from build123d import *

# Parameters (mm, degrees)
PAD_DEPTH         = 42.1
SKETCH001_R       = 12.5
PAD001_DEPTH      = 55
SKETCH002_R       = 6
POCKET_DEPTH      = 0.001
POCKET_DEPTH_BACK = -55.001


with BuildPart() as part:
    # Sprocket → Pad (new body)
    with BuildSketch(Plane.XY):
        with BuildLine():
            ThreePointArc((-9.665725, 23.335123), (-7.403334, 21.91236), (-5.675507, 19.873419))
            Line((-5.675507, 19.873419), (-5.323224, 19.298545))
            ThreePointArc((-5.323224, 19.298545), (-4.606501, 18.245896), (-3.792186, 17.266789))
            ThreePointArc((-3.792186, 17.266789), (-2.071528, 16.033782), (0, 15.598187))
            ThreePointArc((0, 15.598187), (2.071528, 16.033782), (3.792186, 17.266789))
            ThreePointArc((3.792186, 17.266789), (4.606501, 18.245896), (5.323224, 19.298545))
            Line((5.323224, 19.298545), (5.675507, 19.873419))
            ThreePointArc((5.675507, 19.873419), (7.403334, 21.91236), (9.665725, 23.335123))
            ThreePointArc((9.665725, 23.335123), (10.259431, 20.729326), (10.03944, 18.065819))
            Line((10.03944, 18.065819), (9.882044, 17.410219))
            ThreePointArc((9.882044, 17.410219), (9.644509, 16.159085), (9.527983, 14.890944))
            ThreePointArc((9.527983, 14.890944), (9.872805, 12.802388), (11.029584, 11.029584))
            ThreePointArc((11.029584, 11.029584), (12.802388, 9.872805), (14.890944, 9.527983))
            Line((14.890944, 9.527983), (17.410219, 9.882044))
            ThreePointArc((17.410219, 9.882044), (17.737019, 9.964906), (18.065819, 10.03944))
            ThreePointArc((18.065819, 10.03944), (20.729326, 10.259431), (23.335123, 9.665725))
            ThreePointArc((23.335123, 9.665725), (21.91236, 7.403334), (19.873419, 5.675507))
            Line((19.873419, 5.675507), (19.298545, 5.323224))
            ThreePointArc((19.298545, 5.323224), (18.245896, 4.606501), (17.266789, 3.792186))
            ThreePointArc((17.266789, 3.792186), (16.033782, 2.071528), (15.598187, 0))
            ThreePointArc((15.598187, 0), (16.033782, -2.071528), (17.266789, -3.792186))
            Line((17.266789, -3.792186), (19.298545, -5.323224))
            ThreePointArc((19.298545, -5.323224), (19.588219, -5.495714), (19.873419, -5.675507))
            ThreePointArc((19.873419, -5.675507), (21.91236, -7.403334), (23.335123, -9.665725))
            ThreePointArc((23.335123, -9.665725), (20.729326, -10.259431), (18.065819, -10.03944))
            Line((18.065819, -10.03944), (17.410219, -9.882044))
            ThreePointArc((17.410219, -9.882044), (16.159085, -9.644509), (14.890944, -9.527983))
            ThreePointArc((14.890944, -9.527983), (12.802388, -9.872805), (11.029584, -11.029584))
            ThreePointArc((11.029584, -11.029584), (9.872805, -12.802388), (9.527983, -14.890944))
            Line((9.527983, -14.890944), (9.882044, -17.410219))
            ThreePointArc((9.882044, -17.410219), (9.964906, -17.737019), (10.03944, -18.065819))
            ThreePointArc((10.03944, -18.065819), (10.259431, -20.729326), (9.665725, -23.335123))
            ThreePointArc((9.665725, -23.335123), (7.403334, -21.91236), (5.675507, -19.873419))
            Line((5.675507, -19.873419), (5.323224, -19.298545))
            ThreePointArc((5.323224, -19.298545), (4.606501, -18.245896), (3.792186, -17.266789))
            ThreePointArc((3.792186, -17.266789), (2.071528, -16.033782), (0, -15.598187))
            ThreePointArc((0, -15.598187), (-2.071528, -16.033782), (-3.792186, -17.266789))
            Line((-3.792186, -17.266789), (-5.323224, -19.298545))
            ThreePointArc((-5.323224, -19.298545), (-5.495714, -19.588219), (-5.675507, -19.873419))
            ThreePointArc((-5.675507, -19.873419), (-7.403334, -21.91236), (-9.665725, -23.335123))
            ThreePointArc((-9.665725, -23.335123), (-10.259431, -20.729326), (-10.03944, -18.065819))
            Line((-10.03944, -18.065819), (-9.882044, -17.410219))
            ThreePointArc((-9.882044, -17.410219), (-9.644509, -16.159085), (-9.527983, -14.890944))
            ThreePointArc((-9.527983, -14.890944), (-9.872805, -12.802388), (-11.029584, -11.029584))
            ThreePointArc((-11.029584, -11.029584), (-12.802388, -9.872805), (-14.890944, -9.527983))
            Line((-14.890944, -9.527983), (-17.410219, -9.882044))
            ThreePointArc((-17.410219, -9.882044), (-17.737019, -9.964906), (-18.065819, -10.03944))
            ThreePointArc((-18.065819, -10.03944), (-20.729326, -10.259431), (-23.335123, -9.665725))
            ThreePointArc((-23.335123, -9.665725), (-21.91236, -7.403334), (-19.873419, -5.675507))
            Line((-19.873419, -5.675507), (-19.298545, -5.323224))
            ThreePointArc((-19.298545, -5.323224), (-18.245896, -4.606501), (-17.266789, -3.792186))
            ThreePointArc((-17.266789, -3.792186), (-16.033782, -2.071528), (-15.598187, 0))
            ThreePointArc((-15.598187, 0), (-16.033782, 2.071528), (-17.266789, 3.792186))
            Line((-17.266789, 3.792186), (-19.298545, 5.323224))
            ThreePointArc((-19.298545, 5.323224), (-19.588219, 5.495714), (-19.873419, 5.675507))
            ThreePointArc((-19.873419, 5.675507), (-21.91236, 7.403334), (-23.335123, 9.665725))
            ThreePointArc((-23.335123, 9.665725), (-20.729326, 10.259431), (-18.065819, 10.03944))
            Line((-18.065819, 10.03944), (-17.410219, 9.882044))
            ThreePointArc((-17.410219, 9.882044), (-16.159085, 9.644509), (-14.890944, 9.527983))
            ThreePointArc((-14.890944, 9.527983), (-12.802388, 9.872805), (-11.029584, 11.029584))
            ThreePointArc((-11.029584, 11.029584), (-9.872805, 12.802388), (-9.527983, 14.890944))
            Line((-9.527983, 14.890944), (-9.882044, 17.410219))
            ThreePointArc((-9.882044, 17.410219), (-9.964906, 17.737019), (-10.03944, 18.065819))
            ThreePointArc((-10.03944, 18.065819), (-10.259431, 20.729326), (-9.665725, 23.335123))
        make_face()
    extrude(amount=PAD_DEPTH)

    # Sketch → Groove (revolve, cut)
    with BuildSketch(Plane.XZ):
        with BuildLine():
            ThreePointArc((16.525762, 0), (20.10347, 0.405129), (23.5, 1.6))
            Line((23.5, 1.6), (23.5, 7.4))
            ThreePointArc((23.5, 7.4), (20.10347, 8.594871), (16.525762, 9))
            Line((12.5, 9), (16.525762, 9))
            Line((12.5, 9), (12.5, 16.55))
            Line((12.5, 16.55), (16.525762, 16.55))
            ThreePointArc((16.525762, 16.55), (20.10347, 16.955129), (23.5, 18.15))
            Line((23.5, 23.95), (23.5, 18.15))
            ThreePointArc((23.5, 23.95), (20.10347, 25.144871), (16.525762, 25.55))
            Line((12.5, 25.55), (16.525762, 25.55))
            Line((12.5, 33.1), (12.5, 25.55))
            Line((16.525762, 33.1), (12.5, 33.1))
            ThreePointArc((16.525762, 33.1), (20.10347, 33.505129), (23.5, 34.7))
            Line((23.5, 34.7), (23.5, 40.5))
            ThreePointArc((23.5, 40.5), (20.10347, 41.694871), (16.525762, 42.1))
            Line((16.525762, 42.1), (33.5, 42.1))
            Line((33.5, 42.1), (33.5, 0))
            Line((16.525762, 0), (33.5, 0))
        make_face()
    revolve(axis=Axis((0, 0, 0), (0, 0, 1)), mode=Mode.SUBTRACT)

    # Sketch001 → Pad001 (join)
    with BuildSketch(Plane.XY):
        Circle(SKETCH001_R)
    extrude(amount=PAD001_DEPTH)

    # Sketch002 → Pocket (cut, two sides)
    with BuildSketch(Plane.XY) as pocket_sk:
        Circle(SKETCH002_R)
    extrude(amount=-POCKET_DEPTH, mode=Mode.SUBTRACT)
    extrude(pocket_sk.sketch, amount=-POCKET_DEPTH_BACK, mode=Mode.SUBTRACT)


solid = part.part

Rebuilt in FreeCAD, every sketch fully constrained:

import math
import FreeCAD as App
import Part
import Sketcher
from FreeCAD import Vector
Q = App.Units.Quantity

doc = App.newDocument("Part")
body = doc.addObject("PartDesign::Body", "Body")

# Sketch on XY plane
sketch1 = doc.addObject("Sketcher::SketchObject", "Sketch")
body.addObject(sketch1)
sketch1.AttachmentSupport = (doc.XY_Plane, [""])
sketch1.MapMode = "FlatFace"
sketch1.addGeometry([
    Part.ArcOfCircle(Part.Circle(Vector(-13.1, 15.3, 0), Vector(0, 0, 1), 8.8), math.radians(32), math.radians(67)),  # 0
    Part.ArcOfCircle(Part.Circle(Vector(-1.5, 20.1, 0), Vector(0, 0, 1), 8.8), math.radians(158), math.radians(193)),  # 1
    Part.ArcOfCircle(Part.Circle(Vector(2.9, 20.8, 0), Vector(0, 0, 1), 13.3), math.radians(-167.96), math.radians(-165.04)),  # 2
    Part.LineSegment(Vector(-9.9, 17.4, 0), Vector(-9.5, 14.9, 0)),  # 3
    Part.ArcOfCircle(Part.Circle(Vector(-14.7, 14.7, 0), Vector(0, 0, 1), 5.1), math.radians(-45), math.radians(2)),  # 4
    Part.ArcOfCircle(Part.Circle(Vector(-14.7, 14.7, 0), Vector(0, 0, 1), 5.1), math.radians(-92), math.radians(-45)),  # 5
    Part.ArcOfCircle(Part.Circle(Vector(-14.3, 22.8, 0), Vector(0, 0, 1), 13.3), math.radians(-103.5), math.radians(-92.5)),  # 6
    Part.LineSegment(Vector(-17.4, 9.9, 0), Vector(-18.1, 10, 0)),  # 7
    Part.ArcOfCircle(Part.Circle(Vector(-20.1, 1.5, 0), Vector(0, 0, 1), 8.8), math.radians(77), math.radians(112)),  # 8
    Part.ArcOfCircle(Part.Circle(Vector(-15.3, 13.1, 0), Vector(0, 0, 1), 8.8), math.radians(-157), math.radians(-122)),  # 9
    Part.ArcOfCircle(Part.Circle(Vector(-12.7, 16.8, 0), Vector(0, 0, 1), 13.3), math.radians(-122.96), math.radians(-120.04)),  # 10
    Part.LineSegment(Vector(-19.3, 5.3, 0), Vector(-17.3, 3.8, 0)),  # 11
    Part.ArcOfCircle(Part.Circle(Vector(-20.7, 0, 0), Vector(0, 0, 1), 5.1), math.radians(0), math.radians(48)),  # 12
    Part.ArcOfCircle(Part.Circle(Vector(-20.7, 0, 0), Vector(0, 0, 1), 5.1), math.radians(-48), math.radians(0)),  # 13
    Part.ArcOfCircle(Part.Circle(Vector(-26.2, 6, 0), Vector(0, 0, 1), 13.3), math.radians(-58.5), math.radians(-47.5)),  # 14
    Part.LineSegment(Vector(-19.3, -5.3, 0), Vector(-19.9, -5.7, 0)),  # 15
    Part.ArcOfCircle(Part.Circle(Vector(-15.3, -13.1, 0), Vector(0, 0, 1), 8.8), math.radians(122), math.radians(157)),  # 16
    Part.ArcOfCircle(Part.Circle(Vector(-20.1, -1.5, 0), Vector(0, 0, 1), 8.8), math.radians(-112), math.radians(-77)),  # 17
    Part.ArcOfCircle(Part.Circle(Vector(-20.8, 2.9, 0), Vector(0, 0, 1), 13.3), math.radians(-77.96), math.radians(-75.04)),  # 18
    Part.LineSegment(Vector(-17.4, -9.9, 0), Vector(-14.9, -9.5, 0)),  # 19
    Part.ArcOfCircle(Part.Circle(Vector(-14.7, -14.7, 0), Vector(0, 0, 1), 5.1), math.radians(45), math.radians(92)),  # 20
    Part.ArcOfCircle(Part.Circle(Vector(-14.7, -14.7, 0), Vector(0, 0, 1), 5.1), math.radians(-2), math.radians(45)),  # 21
    Part.ArcOfCircle(Part.Circle(Vector(-22.8, -14.3, 0), Vector(0, 0, 1), 13.3), math.radians(-13.5), math.radians(-2.5)),  # 22
    Part.LineSegment(Vector(-9.9, -17.4, 0), Vector(-10, -18.1, 0)),  # 23
    Part.ArcOfCircle(Part.Circle(Vector(-1.5, -20.1, 0), Vector(0, 0, 1), 8.8), math.radians(167), math.radians(202)),  # 24
    Part.ArcOfCircle(Part.Circle(Vector(-13.1, -15.3, 0), Vector(0, 0, 1), 8.8), math.radians(-67), math.radians(-32)),  # 25
    Part.ArcOfCircle(Part.Circle(Vector(-16.8, -12.7, 0), Vector(0, 0, 1), 13.3), math.radians(-32.96), math.radians(-30.04)),  # 26
    Part.LineSegment(Vector(-5.3, -19.3, 0), Vector(-3.8, -17.3, 0)),  # 27
    Part.ArcOfCircle(Part.Circle(Vector(0, -20.7, 0), Vector(0, 0, 1), 5.1), math.radians(90), math.radians(138)),  # 28
    Part.ArcOfCircle(Part.Circle(Vector(0, -20.7, 0), Vector(0, 0, 1), 5.1), math.radians(42), math.radians(90)),  # 29
    Part.ArcOfCircle(Part.Circle(Vector(-6, -26.2, 0), Vector(0, 0, 1), 13.3), math.radians(31.5), math.radians(42.5)),  # 30
    Part.LineSegment(Vector(5.3, -19.3, 0), Vector(5.7, -19.9, 0)),  # 31
    Part.ArcOfCircle(Part.Circle(Vector(13.1, -15.3, 0), Vector(0, 0, 1), 8.8), math.radians(-148), math.radians(-113)),  # 32
    Part.ArcOfCircle(Part.Circle(Vector(1.5, -20.1, 0), Vector(0, 0, 1), 8.8), math.radians(-22), math.radians(13)),  # 33
    Part.ArcOfCircle(Part.Circle(Vector(-2.9, -20.8, 0), Vector(0, 0, 1), 13.3), math.radians(12.04), math.radians(14.96)),  # 34
    Part.LineSegment(Vector(9.9, -17.4, 0), Vector(9.5, -14.9, 0)),  # 35
    Part.ArcOfCircle(Part.Circle(Vector(14.7, -14.7, 0), Vector(0, 0, 1), 5.1), math.radians(135), math.radians(182)),  # 36
    Part.ArcOfCircle(Part.Circle(Vector(14.7, -14.7, 0), Vector(0, 0, 1), 5.1), math.radians(88), math.radians(135)),  # 37
    Part.ArcOfCircle(Part.Circle(Vector(14.3, -22.8, 0), Vector(0, 0, 1), 13.3), math.radians(76.5), math.radians(87.5)),  # 38
    Part.LineSegment(Vector(17.4, -9.9, 0), Vector(18.1, -10, 0)),  # 39
    Part.ArcOfCircle(Part.Circle(Vector(20.1, -1.5, 0), Vector(0, 0, 1), 8.8), math.radians(-103), math.radians(-68)),  # 40
    Part.ArcOfCircle(Part.Circle(Vector(15.3, -13.1, 0), Vector(0, 0, 1), 8.8), math.radians(23), math.radians(58)),  # 41
    Part.ArcOfCircle(Part.Circle(Vector(12.7, -16.8, 0), Vector(0, 0, 1), 13.3), math.radians(57.04), math.radians(59.96)),  # 42
    Part.LineSegment(Vector(19.3, -5.3, 0), Vector(17.3, -3.8, 0)),  # 43
    Part.ArcOfCircle(Part.Circle(Vector(20.7, 0, 0), Vector(0, 0, 1), 5.1), math.radians(180), math.radians(228)),  # 44
    Part.ArcOfCircle(Part.Circle(Vector(20.7, 0, 0), Vector(0, 0, 1), 5.1), math.radians(132), math.radians(180)),  # 45
    Part.ArcOfCircle(Part.Circle(Vector(26.2, -6, 0), Vector(0, 0, 1), 13.3), math.radians(121.5), math.radians(132.5)),  # 46
    Part.LineSegment(Vector(19.3, 5.3, 0), Vector(19.9, 5.7, 0)),  # 47
    Part.ArcOfCircle(Part.Circle(Vector(15.3, 13.1, 0), Vector(0, 0, 1), 8.8), math.radians(-58), math.radians(-23)),  # 48
    Part.ArcOfCircle(Part.Circle(Vector(20.1, 1.5, 0), Vector(0, 0, 1), 8.8), math.radians(68), math.radians(103)),  # 49
    Part.ArcOfCircle(Part.Circle(Vector(20.8, -2.9, 0), Vector(0, 0, 1), 13.3), math.radians(102.04), math.radians(104.96)),  # 50
    Part.LineSegment(Vector(17.4, 9.9, 0), Vector(14.9, 9.5, 0)),  # 51
    Part.ArcOfCircle(Part.Circle(Vector(14.7, 14.7, 0), Vector(0, 0, 1), 5.1), math.radians(-135), math.radians(-88)),  # 52
    Part.ArcOfCircle(Part.Circle(Vector(14.7, 14.7, 0), Vector(0, 0, 1), 5.1), math.radians(178), math.radians(225)),  # 53
    Part.ArcOfCircle(Part.Circle(Vector(22.8, 14.3, 0), Vector(0, 0, 1), 13.3), math.radians(166.5), math.radians(177.5)),  # 54
    Part.LineSegment(Vector(9.9, 17.4, 0), Vector(10, 18.1, 0)),  # 55
    Part.ArcOfCircle(Part.Circle(Vector(1.5, 20.1, 0), Vector(0, 0, 1), 8.8), math.radians(-13), math.radians(22)),  # 56
    Part.ArcOfCircle(Part.Circle(Vector(13.1, 15.3, 0), Vector(0, 0, 1), 8.8), math.radians(113), math.radians(148)),  # 57
    Part.LineSegment(Vector(5.7, 19.9, 0), Vector(5.3, 19.3, 0)),  # 58
    Part.ArcOfCircle(Part.Circle(Vector(-6, 26.2, 0), Vector(0, 0, 1), 13.3), math.radians(-42.5), math.radians(-31.5)),  # 59
    Part.ArcOfCircle(Part.Circle(Vector(0, 20.7, 0), Vector(0, 0, 1), 5.1), math.radians(-90), math.radians(-42)),  # 60
    Part.ArcOfCircle(Part.Circle(Vector(0, 20.7, 0), Vector(0, 0, 1), 5.1), math.radians(-138), math.radians(-90)),  # 61
    Part.ArcOfCircle(Part.Circle(Vector(6, 26.2, 0), Vector(0, 0, 1), 13.3), math.radians(-148.5), math.radians(-137.5)),  # 62
    Part.LineSegment(Vector(-5.3, 19.3, 0), Vector(-5.7, 19.9, 0)),  # 63
], False)
sketch1.addConstraint([
    Sketcher.Constraint("Coincident", 0, 2, 1, 1),
    Sketcher.Constraint("Coincident", 1, 2, 2, 1),
    Sketcher.Constraint("Coincident", 2, 2, 3, 1),
    Sketcher.Constraint("Coincident", 3, 2, 4, 2),
    Sketcher.Constraint("Tangent", 4, 1, 5, 2),
    Sketcher.Constraint("Tangent", 5, 1, 6, 2),
    Sketcher.Constraint("Tangent", 6, 1, 7, 1),
    Sketcher.Constraint("Tangent", 7, 2, 8, 1),
    Sketcher.Constraint("Coincident", 8, 2, 9, 1),
    Sketcher.Constraint("Coincident", 9, 2, 10, 1),
    Sketcher.Constraint("Coincident", 10, 2, 11, 1),
    Sketcher.Constraint("Coincident", 11, 2, 12, 2),
    Sketcher.Constraint("Tangent", 12, 1, 13, 2),
    Sketcher.Constraint("Tangent", 13, 1, 14, 2),
    Sketcher.Constraint("Tangent", 14, 1, 15, 1),
    Sketcher.Constraint("Tangent", 15, 2, 16, 1),
    Sketcher.Constraint("Coincident", 16, 2, 17, 1),
    Sketcher.Constraint("Coincident", 17, 2, 18, 1),
    Sketcher.Constraint("Coincident", 18, 2, 19, 1),
    Sketcher.Constraint("Coincident", 19, 2, 20, 2),
    Sketcher.Constraint("Tangent", 20, 1, 21, 2),
    Sketcher.Constraint("Tangent", 21, 1, 22, 2),
    Sketcher.Constraint("Tangent", 22, 1, 23, 1),
    Sketcher.Constraint("Tangent", 23, 2, 24, 1),
    Sketcher.Constraint("Coincident", 24, 2, 25, 1),
    Sketcher.Constraint("Coincident", 25, 2, 26, 1),
    Sketcher.Constraint("Coincident", 26, 2, 27, 1),
    Sketcher.Constraint("Coincident", 27, 2, 28, 2),
    Sketcher.Constraint("Tangent", 28, 1, 29, 2),
    Sketcher.Constraint("Tangent", 29, 1, 30, 2),
    Sketcher.Constraint("Tangent", 30, 1, 31, 1),
    Sketcher.Constraint("Tangent", 31, 2, 32, 1),
    Sketcher.Constraint("Coincident", 32, 2, 33, 1),
    Sketcher.Constraint("Coincident", 33, 2, 34, 1),
    Sketcher.Constraint("Coincident", 34, 2, 35, 1),
    Sketcher.Constraint("Coincident", 35, 2, 36, 2),
    Sketcher.Constraint("Tangent", 36, 1, 37, 2),
    Sketcher.Constraint("Tangent", 37, 1, 38, 2),
    Sketcher.Constraint("Tangent", 38, 1, 39, 1),
    Sketcher.Constraint("Tangent", 39, 2, 40, 1),
    Sketcher.Constraint("Coincident", 40, 2, 41, 1),
    Sketcher.Constraint("Coincident", 41, 2, 42, 1),
    Sketcher.Constraint("Coincident", 42, 2, 43, 1),
    Sketcher.Constraint("Coincident", 43, 2, 44, 2),
    Sketcher.Constraint("Tangent", 44, 1, 45, 2),
    Sketcher.Constraint("Tangent", 45, 1, 46, 2),
    Sketcher.Constraint("Tangent", 46, 1, 47, 1),
    Sketcher.Constraint("Tangent", 47, 2, 48, 1),
    Sketcher.Constraint("Coincident", 48, 2, 49, 1),
    Sketcher.Constraint("Coincident", 49, 2, 50, 1),
    Sketcher.Constraint("Coincident", 50, 2, 51, 1),
    Sketcher.Constraint("Coincident", 51, 2, 52, 2),
    Sketcher.Constraint("Tangent", 52, 1, 53, 2),
    Sketcher.Constraint("Tangent", 53, 1, 54, 2),
    Sketcher.Constraint("Tangent", 54, 1, 55, 1),
    Sketcher.Constraint("Tangent", 55, 2, 56, 1),
    Sketcher.Constraint("Coincident", 56, 2, 57, 1),
    Sketcher.Constraint("Tangent", 57, 2, 58, 1),
    Sketcher.Constraint("Tangent", 58, 2, 59, 2),
    Sketcher.Constraint("Tangent", 59, 1, 60, 2),
    Sketcher.Constraint("Tangent", 60, 1, 61, 2),
    Sketcher.Constraint("Tangent", 61, 1, 62, 2),
    Sketcher.Constraint("Tangent", 62, 1, 63, 1),
    Sketcher.Constraint("Tangent", 63, 2, 0, 1),
    Sketcher.Constraint("Equal", 4, 5),
    Sketcher.Constraint("Equal", 1, 8),
    Sketcher.Constraint("Equal", 0, 9),
    Sketcher.Constraint("Equal", 12, 13),
    Sketcher.Constraint("Equal", 9, 16),
    Sketcher.Constraint("Equal", 8, 17),
    Sketcher.Constraint("Equal", 2, 18),
    Sketcher.Constraint("Equal", 5, 20),
    Sketcher.Constraint("Equal", 20, 21),
    Sketcher.Constraint("Equal", 6, 22),
    Sketcher.Constraint("Equal", 17, 24),
    Sketcher.Constraint("Equal", 16, 25),
    Sketcher.Constraint("Equal", 10, 26),
    Sketcher.Constraint("Equal", 13, 28),
    Sketcher.Constraint("Equal", 28, 29),
    Sketcher.Constraint("Equal", 14, 30),
    Sketcher.Constraint("Equal", 25, 32),
    Sketcher.Constraint("Equal", 24, 33),
    Sketcher.Constraint("Equal", 18, 34),
    Sketcher.Constraint("Equal", 21, 36),
    Sketcher.Constraint("Equal", 36, 37),
    Sketcher.Constraint("Equal", 22, 38),
    Sketcher.Constraint("Equal", 33, 40),
    Sketcher.Constraint("Equal", 32, 41),
    Sketcher.Constraint("Equal", 26, 42),
    Sketcher.Constraint("Equal", 29, 44),
    Sketcher.Constraint("Equal", 44, 45),
    Sketcher.Constraint("Equal", 30, 46),
    Sketcher.Constraint("Equal", 41, 48),
    Sketcher.Constraint("Equal", 40, 49),
    Sketcher.Constraint("Equal", 34, 50),
    Sketcher.Constraint("Equal", 37, 52),
    Sketcher.Constraint("Equal", 52, 53),
    Sketcher.Constraint("Equal", 38, 54),
    Sketcher.Constraint("Equal", 49, 56),
    Sketcher.Constraint("Equal", 48, 57),
    Sketcher.Constraint("Equal", 46, 59),
    Sketcher.Constraint("Equal", 45, 60),
    Sketcher.Constraint("Equal", 60, 61),
    Sketcher.Constraint("Equal", 59, 62),
    Sketcher.Constraint("Symmetric", 0, 3, 32, 3, -1, 1),
    Sketcher.Constraint("Symmetric", 1, 3, 33, 3, -1, 1),
    Sketcher.Constraint("Symmetric", 2, 3, 34, 3, -1, 1),
    Sketcher.Constraint("Symmetric", 4, 3, 36, 3, -1, 1),
    Sketcher.Constraint("Symmetric", 8, 3, 40, 3, -1, 1),
    Sketcher.Constraint("Symmetric", 9, 3, 41, 3, -1, 1),
    Sketcher.Constraint("Symmetric", 10, 3, 42, 3, -1, 1),
    Sketcher.Constraint("Symmetric", 12, 3, 44, 3, -1, 1),
    Sketcher.Constraint("Symmetric", 16, 3, 48, 3, -1, 1),
    Sketcher.Constraint("Symmetric", 17, 3, 49, 3, -1, 1),
    Sketcher.Constraint("Symmetric", 18, 3, 50, 3, -1, 1),
    Sketcher.Constraint("Symmetric", 20, 3, 52, 3, -1, 1),
    Sketcher.Constraint("Symmetric", 24, 3, 56, 3, -1, 1),
    Sketcher.Constraint("Symmetric", 25, 3, 57, 3, -1, 1),
    Sketcher.Constraint("Symmetric", 28, 3, 60, 3, -1, 1),
    Sketcher.Constraint("Symmetric", 26, 2, 58, 2, -1, 1),
    Sketcher.Constraint("Symmetric", 25, 3, 32, 3, -2),
    Sketcher.Constraint("Symmetric", 24, 3, 33, 3, -2),
    Sketcher.Constraint("Symmetric", 20, 3, 36, 3, -2),
    Sketcher.Constraint("Symmetric", 17, 3, 40, 3, -2),
    Sketcher.Constraint("Symmetric", 16, 3, 41, 3, -2),
    Sketcher.Constraint("Symmetric", 59, 3, 62, 3, -2),
    Sketcher.Constraint("Symmetric", 22, 1, 34, 2, -2),
    Sketcher.Constraint("Symmetric", 18, 2, 38, 1, -2),
    Sketcher.Constraint("Symmetric", 14, 1, 42, 2, -2),
    Sketcher.Constraint("Symmetric", 13, 1, 43, 2, -2),
    Sketcher.Constraint("Symmetric", 10, 2, 46, 1, -2),
    Sketcher.Constraint("Symmetric", 6, 1, 50, 2, -2),
    Sketcher.Constraint("Symmetric", 2, 2, 54, 1, -2),
    Sketcher.Constraint("PointOnObject", 12, 1, -1),
    Sketcher.Constraint("PointOnObject", 28, 1, -2),
    Sketcher.Constraint("PointOnObject", 44, 1, -1),
    Sketcher.Constraint("PointOnObject", 60, 1, -2),
    Sketcher.Constraint("Perpendicular", 3, 19),
    Sketcher.Constraint("Perpendicular", 7, 23),
    Sketcher.Constraint("Perpendicular", 11, 27),
    Sketcher.Constraint("Perpendicular", 15, 31),
    Sketcher.Constraint("Perpendicular", 19, 35),
    Sketcher.Constraint("Perpendicular", 27, 43),
    Sketcher.Constraint("Perpendicular", 35, 51),
    Sketcher.Constraint("Perpendicular", 47, 63),
    Sketcher.Constraint("Horizontal", 27, 2, 29, 1),
    Sketcher.Constraint("Horizontal", 25, 2, 31, 2),
    Sketcher.Constraint("Horizontal", 23, 2, 33, 2),
    Sketcher.Constraint("Horizontal", 21, 1, 35, 2),
    Sketcher.Constraint("Horizontal", 20, 1, 36, 1),
    Sketcher.Constraint("Horizontal", 19, 2, 37, 1),
    Sketcher.Constraint("Horizontal", 17, 2, 39, 2),
    Sketcher.Constraint("Horizontal", 15, 2, 41, 2),
    Sketcher.Constraint("Horizontal", 4, 1, 52, 1),
    Sketcher.Constraint("Vertical", 4, 1, 20, 1),
    Sketcher.Constraint("Equal", 3, 11),
    Sketcher.Constraint("Equal", 7, 15),
    Sketcher.Constraint("Equal", 15, 23),
    Sketcher.Constraint("Equal", 23, 31),
    Sketcher.Constraint("Angle", 3, Q("-82 deg")),
    Sketcher.Constraint("Angle", 11, Q("-37.000001 deg")),
    Sketcher.Constraint("Angle", 15, Q("-148.500017 deg")),
    Sketcher.Constraint("Radius", 4, Q("5.1435 mm")),
    Sketcher.Constraint("Radius", 14, Q("13.271459 mm")),
    Sketcher.Constraint("Radius", 0, Q("8.756044 mm")),
    Sketcher.Constraint("Radius", 1, Q("8.756046 mm")),
    Sketcher.Constraint("Radius", 2, Q("13.271147 mm")),
    Sketcher.Constraint("Radius", 6, Q("13.271543 mm")),
    Sketcher.Constraint("Radius", 10, Q("13.271567 mm")),
    Sketcher.Constraint("Radius", 12, Q("5.143493 mm")),
    Sketcher.Constraint("Distance", 7, Q("0.674229 mm")),
    Sketcher.Constraint("DistanceX", 10, 3, -1, 1, Q("12.653848 mm")),
    Sketcher.Constraint("DistanceY", 26, 3, -1, 1, Q("12.653848 mm")),
    Sketcher.Constraint("DistanceX", 1, 2, -1, 1, Q("10.03944 mm")),
    Sketcher.Constraint("DistanceY", -1, 1, 1, 2, Q("18.065819 mm")),
    Sketcher.Constraint("DistanceX", 4, 1, -1, 1, Q("11.029584 mm")),
])
pad1 = doc.addObject("PartDesign::Pad", "Pad")
body.addObject(pad1)
pad1.Profile = sketch1
pad1.Length = 42.1

# Sketch on XZ plane
sketch2 = doc.addObject("Sketcher::SketchObject", "Sketch001")
body.addObject(sketch2)
sketch2.AttachmentSupport = (doc.XZ_Plane, [""])
sketch2.MapMode = "FlatFace"
sketch2.addGeometry([
    Part.ArcOfCircle(Part.Circle(Vector(16.5, 16, 0), Vector(0, 0, 1), 16), math.radians(-90), math.radians(-64)),  # 0
    Part.LineSegment(Vector(16.5, 0, 0), Vector(33.5, 0, 0)),  # 1
    Part.LineSegment(Vector(33.5, 0, 0), Vector(33.5, 42.1, 0)),  # 2
    Part.LineSegment(Vector(33.5, 42.1, 0), Vector(16.5, 42.1, 0)),  # 3
    Part.ArcOfCircle(Part.Circle(Vector(16.5, 26.1, 0), Vector(0, 0, 1), 16), math.radians(64), math.radians(90)),  # 4
    Part.LineSegment(Vector(23.5, 40.5, 0), Vector(23.5, 34.7, 0)),  # 5
    Part.ArcOfCircle(Part.Circle(Vector(16.5, 49.1, 0), Vector(0, 0, 1), 16), math.radians(-90), math.radians(-64)),  # 6
    Part.LineSegment(Vector(16.5, 33.1, 0), Vector(12.5, 33.1, 0)),  # 7
    Part.LineSegment(Vector(12.5, 33.1, 0), Vector(12.5, 25.6, 0)),  # 8
    Part.LineSegment(Vector(12.5, 25.6, 0), Vector(16.5, 25.6, 0)),  # 9
    Part.ArcOfCircle(Part.Circle(Vector(16.5, 9.5, 0), Vector(0, 0, 1), 16), math.radians(64), math.radians(90)),  # 10
    Part.LineSegment(Vector(23.5, 23.9, 0), Vector(23.5, 18.1, 0)),  # 11
    Part.ArcOfCircle(Part.Circle(Vector(16.5, 32.6, 0), Vector(0, 0, 1), 16), math.radians(-90), math.radians(-64)),  # 12
    Part.LineSegment(Vector(16.5, 16.6, 0), Vector(12.5, 16.6, 0)),  # 13
    Part.LineSegment(Vector(12.5, 16.6, 0), Vector(12.5, 9, 0)),  # 14
    Part.LineSegment(Vector(12.5, 9, 0), Vector(16.5, 9, 0)),  # 15
    Part.ArcOfCircle(Part.Circle(Vector(16.5, -7, 0), Vector(0, 0, 1), 16), math.radians(64), math.radians(90)),  # 16
    Part.LineSegment(Vector(23.5, 7.4, 0), Vector(23.5, 1.6, 0)),  # 17
], False)
sketch2.addConstraint([
    Sketcher.Constraint("Tangent", 0, 1, 1, 1),
    Sketcher.Constraint("Coincident", 1, 2, 2, 1),
    Sketcher.Constraint("Coincident", 2, 2, 3, 1),
    Sketcher.Constraint("Tangent", 3, 2, 4, 2),
    Sketcher.Constraint("Coincident", 4, 1, 5, 1),
    Sketcher.Constraint("Coincident", 5, 2, 6, 2),
    Sketcher.Constraint("Tangent", 6, 1, 7, 1),
    Sketcher.Constraint("Coincident", 7, 2, 8, 1),
    Sketcher.Constraint("Coincident", 8, 2, 9, 1),
    Sketcher.Constraint("Tangent", 9, 2, 10, 2),
    Sketcher.Constraint("Coincident", 10, 1, 11, 1),
    Sketcher.Constraint("Coincident", 11, 2, 12, 2),
    Sketcher.Constraint("Tangent", 12, 1, 13, 1),
    Sketcher.Constraint("Coincident", 13, 2, 14, 1),
    Sketcher.Constraint("Coincident", 14, 2, 15, 1),
    Sketcher.Constraint("Tangent", 15, 2, 16, 2),
    Sketcher.Constraint("Coincident", 16, 1, 17, 1),
    Sketcher.Constraint("Coincident", 17, 2, 0, 2),
    Sketcher.Constraint("Horizontal", 1),
    Sketcher.Constraint("Vertical", 2),
    Sketcher.Constraint("Horizontal", 3),
    Sketcher.Constraint("Vertical", 5),
    Sketcher.Constraint("Horizontal", 7),
    Sketcher.Constraint("Vertical", 8),
    Sketcher.Constraint("Horizontal", 9),
    Sketcher.Constraint("Vertical", 11),
    Sketcher.Constraint("Horizontal", 13),
    Sketcher.Constraint("Vertical", 14),
    Sketcher.Constraint("Horizontal", 15),
    Sketcher.Constraint("Vertical", 17),
    Sketcher.Constraint("Equal", 0, 4),
    Sketcher.Constraint("Equal", 4, 6),
    Sketcher.Constraint("Equal", 6, 10),
    Sketcher.Constraint("Equal", 10, 12),
    Sketcher.Constraint("Equal", 12, 16),
    Sketcher.Constraint("PointOnObject", 0, 1, -1),
    Sketcher.Constraint("Vertical", 0, 3, 4, 3),
    Sketcher.Constraint("Vertical", 4, 3, 6, 3),
    Sketcher.Constraint("Vertical", 6, 3, 10, 3),
    Sketcher.Constraint("Vertical", 10, 3, 12, 3),
    Sketcher.Constraint("Vertical", 12, 3, 16, 3),
    Sketcher.Constraint("Vertical", 5, 2, 10, 1),
    Sketcher.Constraint("Vertical", 8, 2, 13, 2),
    Sketcher.Constraint("Vertical", 11, 2, 16, 1),
    Sketcher.Constraint("Equal", 5, 11),
    Sketcher.Constraint("Equal", 8, 14),
    Sketcher.Constraint("Equal", 11, 17),
    Sketcher.Constraint("DistanceY", 2, 1, 2, 2, Q("42.1 mm")),
    Sketcher.Constraint("DistanceY", 5, 2, 5, 1, Q("5.8 mm")),
    Sketcher.Constraint("DistanceY", -1, 1, 14, 2, Q("9 mm")),
    Sketcher.Constraint("DistanceX", 4, 1, 2, 2, Q("10 mm")),
    Sketcher.Constraint("DistanceX", 7, 2, 5, 2, Q("11 mm")),
    Sketcher.Constraint("DistanceX", -1, 1, 1, 2, Q("33.5 mm")),
    Sketcher.Constraint("Radius", 0, Q("16.000002 mm")),
])
groove = doc.addObject("PartDesign::Groove", "Groove")
body.addObject(groove)
groove.Profile = sketch2
groove.ReferenceAxis = (sketch2, ["V_Axis"])
groove.Angle = 360

# Sketch on XY plane
sketch3 = doc.addObject("Sketcher::SketchObject", "Sketch002")
body.addObject(sketch3)
sketch3.AttachmentSupport = (doc.XY_Plane, [""])
sketch3.MapMode = "FlatFace"
sketch3.addGeometry(Part.Circle(Vector(0, 0, 0), Vector(0, 0, 1), 12), False)
sketch3.addConstraint([
    Sketcher.Constraint("Coincident", 0, 3, -1, 1),
    Sketcher.Constraint("Diameter", 0, Q("25 mm")),
])
pad2 = doc.addObject("PartDesign::Pad", "Pad001")
body.addObject(pad2)
pad2.Profile = sketch3
pad2.Length = 55

# Sketch on XY plane
sketch4 = doc.addObject("Sketcher::SketchObject", "Sketch003")
body.addObject(sketch4)
sketch4.AttachmentSupport = (doc.XY_Plane, [""])
sketch4.MapMode = "FlatFace"
sketch4.addGeometry(Part.Circle(Vector(0, 0, 0), Vector(0, 0, 1), 6), False)
sketch4.addConstraint([
    Sketcher.Constraint("Coincident", 0, 3, -1, 1),
    Sketcher.Constraint("Diameter", 0, Q("12 mm")),
])
pocket1 = doc.addObject("PartDesign::Pocket", "Pocket")
body.addObject(pocket1)
pocket1.Profile = sketch4
pocket1.Type = "ThroughAll"
pocket1.Midplane = True

doc.recompute()
